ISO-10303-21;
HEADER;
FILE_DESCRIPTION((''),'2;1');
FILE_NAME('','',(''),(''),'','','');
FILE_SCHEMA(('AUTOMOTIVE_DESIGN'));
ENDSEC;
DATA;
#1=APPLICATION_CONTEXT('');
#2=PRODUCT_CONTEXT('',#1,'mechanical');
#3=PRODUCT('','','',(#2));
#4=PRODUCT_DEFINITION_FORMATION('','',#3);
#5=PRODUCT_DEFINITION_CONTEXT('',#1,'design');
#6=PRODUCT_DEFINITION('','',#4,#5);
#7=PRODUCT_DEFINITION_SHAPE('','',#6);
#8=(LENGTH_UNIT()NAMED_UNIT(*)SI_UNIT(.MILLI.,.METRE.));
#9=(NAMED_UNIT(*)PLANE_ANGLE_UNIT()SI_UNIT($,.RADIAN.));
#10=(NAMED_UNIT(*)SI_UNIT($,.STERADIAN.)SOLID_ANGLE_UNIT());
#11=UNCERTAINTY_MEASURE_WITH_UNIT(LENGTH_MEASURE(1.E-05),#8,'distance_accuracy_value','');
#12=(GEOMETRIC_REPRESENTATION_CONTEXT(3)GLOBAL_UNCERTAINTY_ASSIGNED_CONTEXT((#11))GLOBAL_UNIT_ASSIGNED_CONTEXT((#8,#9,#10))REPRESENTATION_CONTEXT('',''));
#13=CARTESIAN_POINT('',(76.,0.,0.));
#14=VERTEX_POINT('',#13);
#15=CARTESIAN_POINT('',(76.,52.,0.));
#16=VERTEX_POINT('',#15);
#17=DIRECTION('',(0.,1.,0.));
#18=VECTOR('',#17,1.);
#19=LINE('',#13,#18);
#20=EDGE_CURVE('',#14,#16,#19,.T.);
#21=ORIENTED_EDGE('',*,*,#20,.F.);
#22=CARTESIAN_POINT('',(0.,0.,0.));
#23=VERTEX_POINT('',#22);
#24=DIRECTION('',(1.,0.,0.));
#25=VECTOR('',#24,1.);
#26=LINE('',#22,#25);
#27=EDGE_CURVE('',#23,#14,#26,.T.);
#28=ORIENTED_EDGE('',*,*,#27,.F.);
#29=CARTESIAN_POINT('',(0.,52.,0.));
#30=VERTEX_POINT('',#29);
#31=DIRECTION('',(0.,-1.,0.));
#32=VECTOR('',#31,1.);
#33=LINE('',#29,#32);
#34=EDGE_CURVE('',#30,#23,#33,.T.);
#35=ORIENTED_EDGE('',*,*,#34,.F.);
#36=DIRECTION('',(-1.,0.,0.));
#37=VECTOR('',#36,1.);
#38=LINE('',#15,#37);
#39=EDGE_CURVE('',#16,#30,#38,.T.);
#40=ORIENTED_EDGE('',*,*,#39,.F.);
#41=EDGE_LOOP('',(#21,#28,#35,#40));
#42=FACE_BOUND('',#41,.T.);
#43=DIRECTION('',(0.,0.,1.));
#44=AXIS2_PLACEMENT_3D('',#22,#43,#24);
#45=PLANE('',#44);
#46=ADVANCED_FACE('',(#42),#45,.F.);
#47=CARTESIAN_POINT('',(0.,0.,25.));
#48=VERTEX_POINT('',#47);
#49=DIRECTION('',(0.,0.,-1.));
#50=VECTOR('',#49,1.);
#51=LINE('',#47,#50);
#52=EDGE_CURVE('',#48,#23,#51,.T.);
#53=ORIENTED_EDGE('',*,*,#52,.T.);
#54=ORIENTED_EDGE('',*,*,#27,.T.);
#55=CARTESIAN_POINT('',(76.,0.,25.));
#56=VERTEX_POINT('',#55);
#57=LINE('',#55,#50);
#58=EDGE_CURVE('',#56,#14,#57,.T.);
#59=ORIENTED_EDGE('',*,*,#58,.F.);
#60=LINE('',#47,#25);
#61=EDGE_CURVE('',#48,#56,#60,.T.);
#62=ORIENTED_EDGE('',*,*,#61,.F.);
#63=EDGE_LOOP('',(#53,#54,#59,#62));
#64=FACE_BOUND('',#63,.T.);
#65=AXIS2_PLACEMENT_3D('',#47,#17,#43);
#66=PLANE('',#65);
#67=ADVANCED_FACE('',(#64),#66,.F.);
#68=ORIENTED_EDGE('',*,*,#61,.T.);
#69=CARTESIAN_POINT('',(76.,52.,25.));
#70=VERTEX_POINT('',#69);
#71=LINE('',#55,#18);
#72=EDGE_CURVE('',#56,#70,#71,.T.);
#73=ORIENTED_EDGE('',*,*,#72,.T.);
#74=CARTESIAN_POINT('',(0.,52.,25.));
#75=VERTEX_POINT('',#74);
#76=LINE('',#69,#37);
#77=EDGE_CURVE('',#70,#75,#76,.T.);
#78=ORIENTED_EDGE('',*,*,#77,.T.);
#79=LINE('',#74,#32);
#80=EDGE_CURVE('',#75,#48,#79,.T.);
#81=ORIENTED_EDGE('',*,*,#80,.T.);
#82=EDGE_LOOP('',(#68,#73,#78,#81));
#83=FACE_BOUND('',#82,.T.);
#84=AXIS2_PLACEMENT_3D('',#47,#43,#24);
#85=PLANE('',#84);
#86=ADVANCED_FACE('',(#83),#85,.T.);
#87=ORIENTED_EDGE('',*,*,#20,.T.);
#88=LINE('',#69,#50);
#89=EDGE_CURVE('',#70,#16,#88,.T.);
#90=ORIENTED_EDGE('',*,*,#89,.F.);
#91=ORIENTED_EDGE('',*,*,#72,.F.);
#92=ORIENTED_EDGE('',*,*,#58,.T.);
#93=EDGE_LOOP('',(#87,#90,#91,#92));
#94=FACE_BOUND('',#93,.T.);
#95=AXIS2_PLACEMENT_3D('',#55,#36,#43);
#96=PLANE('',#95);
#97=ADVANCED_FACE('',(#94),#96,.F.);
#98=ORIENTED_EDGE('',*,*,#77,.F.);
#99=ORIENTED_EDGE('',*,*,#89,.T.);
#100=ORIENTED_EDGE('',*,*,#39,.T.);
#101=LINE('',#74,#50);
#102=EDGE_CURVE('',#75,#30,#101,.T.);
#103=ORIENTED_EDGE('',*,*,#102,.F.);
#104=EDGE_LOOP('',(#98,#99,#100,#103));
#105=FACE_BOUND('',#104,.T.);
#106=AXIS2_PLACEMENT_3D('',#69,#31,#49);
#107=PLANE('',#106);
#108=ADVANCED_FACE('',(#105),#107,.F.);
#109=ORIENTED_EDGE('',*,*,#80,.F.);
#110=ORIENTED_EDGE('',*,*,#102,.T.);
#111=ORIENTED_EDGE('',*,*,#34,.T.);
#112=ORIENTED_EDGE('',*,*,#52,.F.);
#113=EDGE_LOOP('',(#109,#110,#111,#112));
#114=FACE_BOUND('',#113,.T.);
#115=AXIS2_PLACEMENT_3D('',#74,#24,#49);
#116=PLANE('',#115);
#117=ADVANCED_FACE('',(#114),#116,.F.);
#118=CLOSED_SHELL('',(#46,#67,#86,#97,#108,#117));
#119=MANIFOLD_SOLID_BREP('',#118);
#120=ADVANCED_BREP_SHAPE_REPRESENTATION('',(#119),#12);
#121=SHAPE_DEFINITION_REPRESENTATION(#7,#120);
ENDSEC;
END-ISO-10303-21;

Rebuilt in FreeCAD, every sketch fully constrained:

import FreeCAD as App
import Part
import Sketcher

doc = App.newDocument("Part")
body = doc.addObject("PartDesign::Body", "Body")

# Sketch on XY plane
sketch1 = doc.addObject("Sketcher::SketchObject", "Sketch")
body.addObject(sketch1)
sketch1.AttachmentSupport = (doc.XY_Plane, [""])
sketch1.MapMode = "FlatFace"
sketch1.addGeometry([
    Part.LineSegment(App.Vector(0, 52, 0), App.Vector(0, 0, 0)),
    Part.LineSegment(App.Vector(0, 0, 0), App.Vector(76, 0, 0)),
    Part.LineSegment(App.Vector(76, 0, 0), App.Vector(76, 52, 0)),
    Part.LineSegment(App.Vector(76, 52, 0), App.Vector(0, 52, 0)),
], False)
sketch1.addConstraint([
    Sketcher.Constraint("Coincident", 0, 2, 1, 1),
    Sketcher.Constraint("Coincident", 1, 2, 2, 1),
    Sketcher.Constraint("Coincident", 2, 2, 3, 1),
    Sketcher.Constraint("Coincident", 3, 2, 0, 1),
    Sketcher.Constraint("Vertical", 0),
    Sketcher.Constraint("Horizontal", 1),
    Sketcher.Constraint("Vertical", 2),
    Sketcher.Constraint("Horizontal", 3),
    Sketcher.Constraint("Coincident", 0, 2, -1, 1),
    Sketcher.Constraint("DistanceX", 1, 1, 1, 2, 76.0),
    Sketcher.Constraint("DistanceY", 0, 2, 0, 1, 52.0),
])
pad1 = doc.addObject("PartDesign::Pad", "Pad")
body.addObject(pad1)
pad1.Profile = sketch1
pad1.Length = 25

doc.recompute()
